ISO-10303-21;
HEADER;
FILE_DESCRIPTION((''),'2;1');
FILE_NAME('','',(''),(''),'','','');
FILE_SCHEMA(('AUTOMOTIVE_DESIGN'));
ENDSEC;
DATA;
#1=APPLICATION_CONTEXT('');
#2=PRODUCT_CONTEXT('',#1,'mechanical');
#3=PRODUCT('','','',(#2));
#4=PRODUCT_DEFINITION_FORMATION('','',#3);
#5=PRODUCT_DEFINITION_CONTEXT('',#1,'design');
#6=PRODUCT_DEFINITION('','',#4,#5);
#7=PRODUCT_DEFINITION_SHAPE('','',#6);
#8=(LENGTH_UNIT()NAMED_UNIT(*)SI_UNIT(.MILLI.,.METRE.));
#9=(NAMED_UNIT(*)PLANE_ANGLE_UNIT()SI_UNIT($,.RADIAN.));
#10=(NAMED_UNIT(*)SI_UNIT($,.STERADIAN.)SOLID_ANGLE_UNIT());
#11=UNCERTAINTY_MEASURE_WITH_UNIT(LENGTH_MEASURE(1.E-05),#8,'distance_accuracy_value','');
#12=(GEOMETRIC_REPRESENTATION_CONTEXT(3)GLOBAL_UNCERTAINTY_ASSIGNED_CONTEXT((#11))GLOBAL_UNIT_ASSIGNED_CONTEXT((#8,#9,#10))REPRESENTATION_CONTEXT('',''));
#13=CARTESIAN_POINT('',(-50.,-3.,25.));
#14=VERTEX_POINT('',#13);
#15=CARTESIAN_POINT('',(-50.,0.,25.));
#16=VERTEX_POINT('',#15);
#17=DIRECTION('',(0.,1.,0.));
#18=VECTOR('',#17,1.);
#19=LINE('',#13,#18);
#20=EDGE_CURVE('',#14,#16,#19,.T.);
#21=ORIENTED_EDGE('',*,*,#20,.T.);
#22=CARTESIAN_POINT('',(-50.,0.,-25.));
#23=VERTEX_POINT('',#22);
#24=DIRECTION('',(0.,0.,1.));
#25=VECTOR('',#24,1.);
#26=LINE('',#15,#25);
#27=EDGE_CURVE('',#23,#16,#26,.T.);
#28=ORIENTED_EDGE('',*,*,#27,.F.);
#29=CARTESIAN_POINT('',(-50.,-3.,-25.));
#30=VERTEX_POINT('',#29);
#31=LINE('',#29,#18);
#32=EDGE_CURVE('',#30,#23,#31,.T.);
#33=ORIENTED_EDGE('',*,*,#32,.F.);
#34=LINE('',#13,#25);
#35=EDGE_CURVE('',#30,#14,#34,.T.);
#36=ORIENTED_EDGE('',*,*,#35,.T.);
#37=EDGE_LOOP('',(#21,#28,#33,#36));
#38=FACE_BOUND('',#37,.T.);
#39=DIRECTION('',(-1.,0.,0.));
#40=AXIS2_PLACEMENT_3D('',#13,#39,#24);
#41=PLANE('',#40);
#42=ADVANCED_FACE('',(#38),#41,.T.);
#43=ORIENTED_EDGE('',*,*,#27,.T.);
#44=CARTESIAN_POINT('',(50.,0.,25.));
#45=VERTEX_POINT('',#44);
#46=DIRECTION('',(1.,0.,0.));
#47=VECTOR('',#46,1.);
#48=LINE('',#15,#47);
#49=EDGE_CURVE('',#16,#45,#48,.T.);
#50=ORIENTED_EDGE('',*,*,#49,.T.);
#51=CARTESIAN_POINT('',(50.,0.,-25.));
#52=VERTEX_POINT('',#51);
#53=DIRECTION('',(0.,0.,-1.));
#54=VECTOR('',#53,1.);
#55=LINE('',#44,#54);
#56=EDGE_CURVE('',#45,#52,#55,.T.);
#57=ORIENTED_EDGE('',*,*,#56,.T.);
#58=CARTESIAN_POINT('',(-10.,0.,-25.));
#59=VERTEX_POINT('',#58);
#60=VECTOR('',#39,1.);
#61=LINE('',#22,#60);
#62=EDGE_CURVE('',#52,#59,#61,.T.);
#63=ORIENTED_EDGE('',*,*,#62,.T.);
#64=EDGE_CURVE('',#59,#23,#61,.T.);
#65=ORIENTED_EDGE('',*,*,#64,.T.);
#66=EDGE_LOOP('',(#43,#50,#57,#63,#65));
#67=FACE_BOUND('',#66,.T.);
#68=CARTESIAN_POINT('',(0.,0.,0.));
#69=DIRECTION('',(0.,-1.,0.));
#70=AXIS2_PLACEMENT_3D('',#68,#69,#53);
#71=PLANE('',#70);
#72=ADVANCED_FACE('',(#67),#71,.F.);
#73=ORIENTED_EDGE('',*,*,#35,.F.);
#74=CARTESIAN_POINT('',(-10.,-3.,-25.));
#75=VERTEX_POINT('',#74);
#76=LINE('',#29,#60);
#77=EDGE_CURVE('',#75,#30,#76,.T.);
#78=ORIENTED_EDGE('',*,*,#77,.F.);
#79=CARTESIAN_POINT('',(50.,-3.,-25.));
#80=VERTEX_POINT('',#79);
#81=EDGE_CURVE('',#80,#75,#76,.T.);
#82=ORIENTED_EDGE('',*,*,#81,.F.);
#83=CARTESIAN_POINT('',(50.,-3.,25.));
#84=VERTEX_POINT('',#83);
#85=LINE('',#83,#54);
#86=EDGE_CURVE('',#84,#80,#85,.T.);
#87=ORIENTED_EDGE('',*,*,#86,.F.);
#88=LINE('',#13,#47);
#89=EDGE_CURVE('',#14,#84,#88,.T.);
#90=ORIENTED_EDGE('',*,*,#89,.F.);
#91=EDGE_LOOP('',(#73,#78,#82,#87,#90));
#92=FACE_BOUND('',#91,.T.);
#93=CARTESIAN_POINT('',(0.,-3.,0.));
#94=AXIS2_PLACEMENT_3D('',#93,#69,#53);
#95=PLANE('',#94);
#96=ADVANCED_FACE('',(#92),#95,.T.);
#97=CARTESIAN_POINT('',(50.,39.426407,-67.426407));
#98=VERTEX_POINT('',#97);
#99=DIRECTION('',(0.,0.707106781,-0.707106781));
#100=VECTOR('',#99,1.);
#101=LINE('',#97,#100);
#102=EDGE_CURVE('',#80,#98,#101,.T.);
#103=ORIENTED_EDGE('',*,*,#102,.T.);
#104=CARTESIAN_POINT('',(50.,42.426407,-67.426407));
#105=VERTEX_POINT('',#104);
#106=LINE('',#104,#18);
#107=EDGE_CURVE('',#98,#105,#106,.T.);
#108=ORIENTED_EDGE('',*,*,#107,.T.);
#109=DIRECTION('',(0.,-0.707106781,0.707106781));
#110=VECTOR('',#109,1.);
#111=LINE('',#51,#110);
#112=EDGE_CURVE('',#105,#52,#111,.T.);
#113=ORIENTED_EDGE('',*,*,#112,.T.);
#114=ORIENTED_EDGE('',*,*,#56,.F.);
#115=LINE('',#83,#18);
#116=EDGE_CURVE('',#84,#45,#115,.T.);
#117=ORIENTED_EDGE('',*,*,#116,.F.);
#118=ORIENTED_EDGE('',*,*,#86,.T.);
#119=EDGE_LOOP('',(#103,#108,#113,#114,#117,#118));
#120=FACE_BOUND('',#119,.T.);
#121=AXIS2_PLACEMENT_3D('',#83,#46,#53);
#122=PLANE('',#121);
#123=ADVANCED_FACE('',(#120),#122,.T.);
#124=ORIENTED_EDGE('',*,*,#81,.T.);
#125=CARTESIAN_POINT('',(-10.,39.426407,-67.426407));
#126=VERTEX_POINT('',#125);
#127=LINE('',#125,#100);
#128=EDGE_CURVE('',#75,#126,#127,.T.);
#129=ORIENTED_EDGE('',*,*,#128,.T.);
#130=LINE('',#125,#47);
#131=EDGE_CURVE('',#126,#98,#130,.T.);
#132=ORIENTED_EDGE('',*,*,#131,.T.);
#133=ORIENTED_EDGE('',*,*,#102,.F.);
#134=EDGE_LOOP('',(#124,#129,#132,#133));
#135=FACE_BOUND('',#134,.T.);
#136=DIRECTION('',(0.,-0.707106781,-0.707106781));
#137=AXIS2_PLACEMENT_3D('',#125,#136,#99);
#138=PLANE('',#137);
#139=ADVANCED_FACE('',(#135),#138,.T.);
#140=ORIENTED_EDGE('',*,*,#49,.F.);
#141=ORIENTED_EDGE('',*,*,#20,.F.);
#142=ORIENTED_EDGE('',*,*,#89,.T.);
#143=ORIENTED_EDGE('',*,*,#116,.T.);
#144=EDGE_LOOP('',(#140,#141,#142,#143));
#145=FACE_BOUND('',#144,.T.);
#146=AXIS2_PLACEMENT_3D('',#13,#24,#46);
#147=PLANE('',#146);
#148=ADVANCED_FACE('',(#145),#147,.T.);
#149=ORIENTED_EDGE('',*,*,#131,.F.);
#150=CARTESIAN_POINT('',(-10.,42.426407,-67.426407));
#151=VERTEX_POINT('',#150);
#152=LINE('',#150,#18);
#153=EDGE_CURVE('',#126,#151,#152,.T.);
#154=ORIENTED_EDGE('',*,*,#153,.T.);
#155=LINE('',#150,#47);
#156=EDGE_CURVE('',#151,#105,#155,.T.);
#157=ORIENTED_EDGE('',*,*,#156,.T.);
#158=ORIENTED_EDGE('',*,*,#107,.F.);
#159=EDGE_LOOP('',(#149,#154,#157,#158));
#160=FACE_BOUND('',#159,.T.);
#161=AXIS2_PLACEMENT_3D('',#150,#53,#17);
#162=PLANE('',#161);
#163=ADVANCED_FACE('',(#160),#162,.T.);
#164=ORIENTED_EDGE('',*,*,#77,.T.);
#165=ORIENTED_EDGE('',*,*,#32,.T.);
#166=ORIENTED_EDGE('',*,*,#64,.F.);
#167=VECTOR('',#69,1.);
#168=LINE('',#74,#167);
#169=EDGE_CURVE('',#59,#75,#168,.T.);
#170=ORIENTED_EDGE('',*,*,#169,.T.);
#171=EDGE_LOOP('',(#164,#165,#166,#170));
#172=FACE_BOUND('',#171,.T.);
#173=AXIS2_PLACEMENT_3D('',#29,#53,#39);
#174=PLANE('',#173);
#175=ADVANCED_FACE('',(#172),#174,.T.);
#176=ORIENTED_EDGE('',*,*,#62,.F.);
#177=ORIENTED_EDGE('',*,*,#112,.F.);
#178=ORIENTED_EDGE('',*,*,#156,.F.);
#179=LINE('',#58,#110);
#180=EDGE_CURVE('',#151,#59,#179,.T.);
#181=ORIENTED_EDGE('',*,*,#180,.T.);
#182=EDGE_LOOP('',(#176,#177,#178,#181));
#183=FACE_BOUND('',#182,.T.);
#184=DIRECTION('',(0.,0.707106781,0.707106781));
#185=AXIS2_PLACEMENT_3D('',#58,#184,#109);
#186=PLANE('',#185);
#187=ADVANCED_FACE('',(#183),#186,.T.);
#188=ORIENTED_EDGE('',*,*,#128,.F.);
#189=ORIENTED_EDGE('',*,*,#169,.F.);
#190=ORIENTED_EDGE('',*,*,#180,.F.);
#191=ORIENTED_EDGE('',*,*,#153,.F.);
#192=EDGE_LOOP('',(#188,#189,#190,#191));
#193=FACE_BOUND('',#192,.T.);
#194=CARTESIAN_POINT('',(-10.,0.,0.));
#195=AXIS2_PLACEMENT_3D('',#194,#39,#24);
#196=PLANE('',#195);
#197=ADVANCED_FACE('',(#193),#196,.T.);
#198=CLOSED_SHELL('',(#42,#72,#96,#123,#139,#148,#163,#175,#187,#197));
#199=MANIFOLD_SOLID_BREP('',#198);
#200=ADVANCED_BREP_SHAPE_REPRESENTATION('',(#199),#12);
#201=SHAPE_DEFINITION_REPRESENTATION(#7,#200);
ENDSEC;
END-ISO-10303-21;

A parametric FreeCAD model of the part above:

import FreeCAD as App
import Part
import Sketcher
Q = App.Units.Quantity

doc = App.newDocument("Part")
body = doc.addObject("PartDesign::Body", "Body")

sketch1 = doc.addObject("Sketcher::SketchObject", "Sketch")
body.addObject(sketch1)
sketch1.AttachmentSupport = (doc.XZ_Plane, [""])
sketch1.MapMode = "FlatFace"
sketch1.addGeometry([
    Part.LineSegment(App.Vector(-50, -25, 0), App.Vector(-50, 25, 0)),
    Part.LineSegment(App.Vector(-50, 25, 0), App.Vector(50, 25, 0)),
    Part.LineSegment(App.Vector(50, 25, 0), App.Vector(50, -25, 0)),
    Part.LineSegment(App.Vector(50, -25, 0), App.Vector(-50, -25, 0)),
], False)
sketch1.addConstraint([
    Sketcher.Constraint("Coincident", 0, 2, 1, 1),
    Sketcher.Constraint("Coincident", 1, 2, 2, 1),
    Sketcher.Constraint("Coincident", 2, 2, 3, 1),
    Sketcher.Constraint("Coincident", 3, 2, 0, 1),
    Sketcher.Constraint("Vertical", 0),
    Sketcher.Constraint("Horizontal", 1),
    Sketcher.Constraint("Vertical", 2),
    Sketcher.Constraint("Horizontal", 3),
    Sketcher.Constraint("Symmetric", 0, 2, 2, 2, -1, 1),
    Sketcher.Constraint("DistanceX", 1, 1, 1, 2, 100.0),
    Sketcher.Constraint("DistanceY", 0, 1, 0, 2, 50.0),
])
pad1 = doc.addObject("PartDesign::Pad", "Pad")
body.addObject(pad1)
pad1.Profile = sketch1
pad1.Length = 3

sketch2 = doc.addObject("Sketcher::SketchObject", "Sketch001")
body.addObject(sketch2)
sketch2.AttachmentSupport = (doc.YZ_Plane, [""])
sketch2.MapMode = "FlatFace"
sketch2.AttachmentOffset = App.Placement(App.Vector(0, 0, 50), App.Rotation())
sketch2.addGeometry([
    Part.LineSegment(App.Vector(42.426407, -67.426407, 0), App.Vector(0, -25, 0)),
    Part.LineSegment(App.Vector(0, -25, 0), App.Vector(-3, -25, 0)),
    Part.LineSegment(App.Vector(-3, -25, 0), App.Vector(39.426407, -67.426407, 0)),
    Part.LineSegment(App.Vector(39.426407, -67.426407, 0), App.Vector(42.426407, -67.426407, 0)),
], False)
sketch2.addConstraint([
    Sketcher.Constraint("Coincident", 0, 2, 1, 1),
    Sketcher.Constraint("Coincident", 1, 2, 2, 1),
    Sketcher.Constraint("Coincident", 2, 2, 3, 1),
    Sketcher.Constraint("Coincident", 3, 2, 0, 1),
    Sketcher.Constraint("Horizontal", 1),
    Sketcher.Constraint("Horizontal", 3),
    Sketcher.Constraint("PointOnObject", 0, 2, -2),
    Sketcher.Constraint("Parallel", 0, 2),
    Sketcher.Constraint("DistanceX", 1, 2, 1, 1, 3.0),
    Sketcher.Constraint("Angle", 0, Q("135 deg")),
    Sketcher.Constraint("Distance", 0, 60.0),
    Sketcher.Constraint("DistanceY", 0, 2, -1, 1, 25.0),
])
pad2 = doc.addObject("PartDesign::Pad", "Pad001")
body.addObject(pad2)
pad2.Profile = sketch2
pad2.Length = 60
pad2.Reversed = True

doc.recompute()
